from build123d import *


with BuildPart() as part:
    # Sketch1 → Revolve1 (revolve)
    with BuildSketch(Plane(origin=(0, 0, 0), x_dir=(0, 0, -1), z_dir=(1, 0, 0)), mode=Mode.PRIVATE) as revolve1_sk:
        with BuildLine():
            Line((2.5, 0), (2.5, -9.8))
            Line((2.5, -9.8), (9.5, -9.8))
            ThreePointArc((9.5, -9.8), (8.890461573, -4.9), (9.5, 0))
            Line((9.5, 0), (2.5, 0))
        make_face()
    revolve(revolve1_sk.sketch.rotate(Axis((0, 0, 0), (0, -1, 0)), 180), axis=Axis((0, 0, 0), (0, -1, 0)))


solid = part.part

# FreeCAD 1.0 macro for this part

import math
import FreeCAD as App
import Part
import Sketcher
from FreeCAD import Vector
Q = App.Units.Quantity

doc = App.newDocument("Part")
params = doc.addObject("Spreadsheet::Sheet", "Params")
for row, (alias, value) in enumerate([
    ("sketch1_radius", "20 mm"),
    ("sketch1_height", "7 mm"),
    ("sketch1_width", "9.8 mm"),
    ("revolution_angle", "360 deg"),
], start=1):
    params.set(f"A{row}", alias)
    params.set(f"B{row}", "=" + value)
    params.setAlias(f"B{row}", alias)

body = doc.addObject("PartDesign::Body", "Body")

sketch1 = doc.addObject("Sketcher::SketchObject", "Sketch")
body.addObject(sketch1)
sketch1.AttachmentSupport = (doc.YZ_Plane, [""])
sketch1.MapMode = "FlatFace"
sketch1.addGeometry([
    Part.LineSegment(Vector(0, -2, 0), Vector(-10, -2, 0)),
    Part.LineSegment(Vector(-10, -2, 0), Vector(-10, -10, 0)),
    Part.ArcOfCircle(Part.Circle(Vector(-5, -29, 0), Vector(0, 0, 1), 20), math.radians(76), math.radians(104)),
    Part.LineSegment(Vector(0, -10, 0), Vector(0, -2, 0)),
], False)
sketch1.addConstraint([
    Sketcher.Constraint("Coincident", 0, 2, 1, 1),
    Sketcher.Constraint("Coincident", 1, 2, 2, 2),
    Sketcher.Constraint("Coincident", 2, 1, 3, 1),
    Sketcher.Constraint("Coincident", 3, 2, 0, 1),
    Sketcher.Constraint("Horizontal", 0),
    Sketcher.Constraint("Vertical", 1),
    Sketcher.Constraint("Vertical", 3),
    Sketcher.Constraint("PointOnObject", 2, 1, -2),
    Sketcher.Constraint("Horizontal", 1, 2, 2, 1),
    Sketcher.Constraint("Radius", 2, Q("20 mm")),
    Sketcher.Constraint("DistanceY", 1, 2, 1, 1, Q("7 mm")),
    Sketcher.Constraint("DistanceX", 0, 2, 0, 1, Q("9.8 mm")),
    Sketcher.Constraint("DistanceY", 0, 2, -1, 1, Q("2.5 mm")),
])
sketch1.setExpression("Constraints[9]", "Params.sketch1_radius")
sketch1.setExpression("Constraints[10]", "Params.sketch1_height")
sketch1.setExpression("Constraints[11]", "Params.sketch1_width")
revolution = doc.addObject("PartDesign::Revolution", "Revolution")
body.addObject(revolution)
revolution.Profile = sketch1
revolution.ReferenceAxis = (sketch1, ["H_Axis"])
revolution.setExpression("Angle", "Params.revolution_angle")

doc.recompute()
